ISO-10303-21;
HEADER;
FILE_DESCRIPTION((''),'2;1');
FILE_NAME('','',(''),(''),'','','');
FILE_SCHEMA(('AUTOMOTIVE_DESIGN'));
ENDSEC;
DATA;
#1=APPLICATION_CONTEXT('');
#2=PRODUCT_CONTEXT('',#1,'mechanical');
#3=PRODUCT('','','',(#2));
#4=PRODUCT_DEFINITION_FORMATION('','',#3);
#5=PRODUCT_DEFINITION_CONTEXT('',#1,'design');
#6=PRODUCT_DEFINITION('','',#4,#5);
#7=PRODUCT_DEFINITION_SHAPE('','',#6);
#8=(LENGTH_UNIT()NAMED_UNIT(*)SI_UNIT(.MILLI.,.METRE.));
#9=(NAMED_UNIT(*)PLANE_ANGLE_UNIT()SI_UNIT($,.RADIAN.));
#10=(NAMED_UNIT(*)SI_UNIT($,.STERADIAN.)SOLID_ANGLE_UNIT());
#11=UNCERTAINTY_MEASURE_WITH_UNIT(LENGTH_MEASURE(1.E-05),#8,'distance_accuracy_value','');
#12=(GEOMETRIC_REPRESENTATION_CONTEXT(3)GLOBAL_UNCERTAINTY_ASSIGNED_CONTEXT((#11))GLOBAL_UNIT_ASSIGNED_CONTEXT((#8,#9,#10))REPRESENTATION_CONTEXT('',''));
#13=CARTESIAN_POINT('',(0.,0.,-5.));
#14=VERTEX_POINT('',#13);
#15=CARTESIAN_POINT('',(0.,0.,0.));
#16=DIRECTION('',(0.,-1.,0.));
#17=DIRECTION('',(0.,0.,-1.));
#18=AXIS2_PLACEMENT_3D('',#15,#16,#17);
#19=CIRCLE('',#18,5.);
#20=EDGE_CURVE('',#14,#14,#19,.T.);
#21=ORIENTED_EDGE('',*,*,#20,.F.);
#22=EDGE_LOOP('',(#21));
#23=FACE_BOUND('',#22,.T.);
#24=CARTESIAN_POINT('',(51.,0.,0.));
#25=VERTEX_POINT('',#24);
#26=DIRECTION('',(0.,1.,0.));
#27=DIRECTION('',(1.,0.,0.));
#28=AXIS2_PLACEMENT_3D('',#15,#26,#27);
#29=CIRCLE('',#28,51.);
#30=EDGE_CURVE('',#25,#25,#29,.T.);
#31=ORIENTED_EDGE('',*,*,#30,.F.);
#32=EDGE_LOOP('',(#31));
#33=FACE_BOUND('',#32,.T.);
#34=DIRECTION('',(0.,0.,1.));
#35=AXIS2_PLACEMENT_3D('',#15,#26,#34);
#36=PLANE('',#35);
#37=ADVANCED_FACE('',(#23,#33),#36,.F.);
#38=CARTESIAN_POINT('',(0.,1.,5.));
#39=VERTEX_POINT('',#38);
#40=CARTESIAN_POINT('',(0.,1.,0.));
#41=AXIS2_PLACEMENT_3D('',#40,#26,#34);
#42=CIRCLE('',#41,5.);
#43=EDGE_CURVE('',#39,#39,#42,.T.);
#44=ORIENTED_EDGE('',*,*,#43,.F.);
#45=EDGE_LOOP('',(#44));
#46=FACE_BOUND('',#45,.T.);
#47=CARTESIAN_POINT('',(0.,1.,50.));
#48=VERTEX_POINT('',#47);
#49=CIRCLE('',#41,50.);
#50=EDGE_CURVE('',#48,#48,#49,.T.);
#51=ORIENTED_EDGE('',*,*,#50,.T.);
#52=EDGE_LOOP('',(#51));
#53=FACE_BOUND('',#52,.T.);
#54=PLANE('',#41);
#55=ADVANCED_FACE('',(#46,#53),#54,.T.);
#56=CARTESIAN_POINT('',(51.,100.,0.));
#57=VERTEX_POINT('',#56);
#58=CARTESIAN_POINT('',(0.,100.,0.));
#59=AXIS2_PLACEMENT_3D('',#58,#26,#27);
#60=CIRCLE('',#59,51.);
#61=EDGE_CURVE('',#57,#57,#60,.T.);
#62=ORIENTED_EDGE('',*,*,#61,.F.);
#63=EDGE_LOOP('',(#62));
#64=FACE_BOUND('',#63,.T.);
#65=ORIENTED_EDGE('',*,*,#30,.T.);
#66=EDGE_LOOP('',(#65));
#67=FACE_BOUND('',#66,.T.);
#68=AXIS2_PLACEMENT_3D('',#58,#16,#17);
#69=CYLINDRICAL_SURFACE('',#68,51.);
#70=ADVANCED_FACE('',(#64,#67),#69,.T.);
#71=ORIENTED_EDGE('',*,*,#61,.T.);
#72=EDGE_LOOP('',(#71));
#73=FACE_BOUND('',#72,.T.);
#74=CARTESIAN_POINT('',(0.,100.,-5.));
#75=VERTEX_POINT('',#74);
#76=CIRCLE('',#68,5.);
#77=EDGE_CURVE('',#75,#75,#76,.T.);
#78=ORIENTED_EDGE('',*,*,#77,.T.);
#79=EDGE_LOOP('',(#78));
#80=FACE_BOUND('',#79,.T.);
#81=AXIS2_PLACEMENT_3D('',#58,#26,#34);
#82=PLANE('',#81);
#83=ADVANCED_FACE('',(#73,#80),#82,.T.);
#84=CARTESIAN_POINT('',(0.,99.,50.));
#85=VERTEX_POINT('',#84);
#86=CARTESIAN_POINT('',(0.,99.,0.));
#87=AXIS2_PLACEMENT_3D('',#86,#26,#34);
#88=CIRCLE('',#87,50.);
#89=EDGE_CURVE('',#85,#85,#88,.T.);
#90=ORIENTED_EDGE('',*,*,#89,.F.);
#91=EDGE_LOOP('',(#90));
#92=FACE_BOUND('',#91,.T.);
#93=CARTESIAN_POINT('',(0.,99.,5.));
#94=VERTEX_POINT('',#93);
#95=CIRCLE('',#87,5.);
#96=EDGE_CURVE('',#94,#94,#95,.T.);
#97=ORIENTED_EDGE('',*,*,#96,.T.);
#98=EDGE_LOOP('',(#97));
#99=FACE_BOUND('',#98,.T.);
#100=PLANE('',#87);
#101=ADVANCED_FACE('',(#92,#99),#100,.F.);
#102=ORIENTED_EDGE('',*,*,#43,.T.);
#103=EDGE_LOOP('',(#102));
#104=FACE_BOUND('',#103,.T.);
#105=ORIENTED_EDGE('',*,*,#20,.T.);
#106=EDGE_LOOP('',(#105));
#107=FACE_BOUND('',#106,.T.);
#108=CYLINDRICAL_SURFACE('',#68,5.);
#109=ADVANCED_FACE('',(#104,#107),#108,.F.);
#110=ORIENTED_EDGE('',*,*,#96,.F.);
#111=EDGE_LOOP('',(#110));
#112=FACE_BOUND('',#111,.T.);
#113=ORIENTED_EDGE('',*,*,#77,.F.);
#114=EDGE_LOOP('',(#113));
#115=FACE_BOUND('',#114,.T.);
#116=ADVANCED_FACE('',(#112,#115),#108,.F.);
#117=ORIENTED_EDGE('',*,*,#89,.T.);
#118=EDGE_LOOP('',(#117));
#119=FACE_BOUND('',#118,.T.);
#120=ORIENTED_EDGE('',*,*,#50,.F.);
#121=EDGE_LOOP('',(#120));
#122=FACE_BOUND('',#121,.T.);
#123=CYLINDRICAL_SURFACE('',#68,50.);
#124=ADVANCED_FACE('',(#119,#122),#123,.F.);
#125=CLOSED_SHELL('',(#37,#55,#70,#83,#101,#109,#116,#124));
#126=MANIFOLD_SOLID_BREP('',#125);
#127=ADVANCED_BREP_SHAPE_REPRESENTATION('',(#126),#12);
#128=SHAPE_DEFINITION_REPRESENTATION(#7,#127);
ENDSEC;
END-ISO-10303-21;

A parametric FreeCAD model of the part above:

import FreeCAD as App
import Part
import Sketcher

V = App.Vector

doc = App.newDocument("Part")
body = doc.addObject("PartDesign::Body", "Body")

sketch1 = body.newObject("Sketcher::SketchObject", "Sketch")
sketch1.AttachmentSupport = (doc.getObject("XZ_Plane"), [""])
sketch1.MapMode = "FlatFace"
sketch1.addGeometry(Part.Circle(V(0, 0, 0), V(0, 0, 1), 51), False)
sketch1.addGeometry(Part.Circle(V(0, 0, 0), V(0, 0, 1), 50), False)
sketch1.addConstraint(Sketcher.Constraint("Coincident", 0, 3, -1, 1))
sketch1.addConstraint(Sketcher.Constraint("Coincident", 1, 3, -1, 1))
sketch1.addConstraint(Sketcher.Constraint("Diameter", 0, 102.0))
sketch1.addConstraint(Sketcher.Constraint("Diameter", 1, 100.0))
pad1 = body.newObject("PartDesign::Pad", "Pad")
pad1.Profile = sketch1
pad1.Length = 100
pad1.Reversed = True

sketch2 = body.newObject("Sketcher::SketchObject", "Sketch001")
sketch2.AttachmentSupport = (doc.getObject("XZ_Plane"), [""])
sketch2.MapMode = "FlatFace"
sketch2.addGeometry(Part.Circle(V(0, 0, 0), V(0, 0, 1), 50), False)
sketch2.addConstraint(Sketcher.Constraint("Coincident", 0, 3, -1, 1))
sketch2.addConstraint(Sketcher.Constraint("Diameter", 0, 100.0))
pad2 = body.newObject("PartDesign::Pad", "Pad001")
pad2.Profile = sketch2
pad2.Length = 1
pad2.Reversed = True
doc.recompute()

linearpattern = body.newObject("PartDesign::LinearPattern", "LinearPattern")
linearpattern.Originals = [pad2]
linearpattern.Direction = (doc.getObject("Y_Axis"), [""])
linearpattern.Mode = "offset"
linearpattern.Offset = 99
linearpattern.Occurrences = 2
body.Tip = linearpattern

sketch3 = body.newObject("Sketcher::SketchObject", "Sketch002")
sketch3.AttachmentSupport = (doc.getObject("XZ_Plane"), [""])
sketch3.MapMode = "FlatFace"
sketch3.addGeometry(Part.Circle(V(0, 0, 0), V(0, 0, 1), 5), False)
sketch3.addConstraint(Sketcher.Constraint("Coincident", 0, 3, -1, 1))
sketch3.addConstraint(Sketcher.Constraint("Diameter", 0, 10.0))
pocket1 = body.newObject("PartDesign::Pocket", "Pocket")
pocket1.Profile = sketch3
pocket1.Type = "ThroughAll"

doc.recompute()
